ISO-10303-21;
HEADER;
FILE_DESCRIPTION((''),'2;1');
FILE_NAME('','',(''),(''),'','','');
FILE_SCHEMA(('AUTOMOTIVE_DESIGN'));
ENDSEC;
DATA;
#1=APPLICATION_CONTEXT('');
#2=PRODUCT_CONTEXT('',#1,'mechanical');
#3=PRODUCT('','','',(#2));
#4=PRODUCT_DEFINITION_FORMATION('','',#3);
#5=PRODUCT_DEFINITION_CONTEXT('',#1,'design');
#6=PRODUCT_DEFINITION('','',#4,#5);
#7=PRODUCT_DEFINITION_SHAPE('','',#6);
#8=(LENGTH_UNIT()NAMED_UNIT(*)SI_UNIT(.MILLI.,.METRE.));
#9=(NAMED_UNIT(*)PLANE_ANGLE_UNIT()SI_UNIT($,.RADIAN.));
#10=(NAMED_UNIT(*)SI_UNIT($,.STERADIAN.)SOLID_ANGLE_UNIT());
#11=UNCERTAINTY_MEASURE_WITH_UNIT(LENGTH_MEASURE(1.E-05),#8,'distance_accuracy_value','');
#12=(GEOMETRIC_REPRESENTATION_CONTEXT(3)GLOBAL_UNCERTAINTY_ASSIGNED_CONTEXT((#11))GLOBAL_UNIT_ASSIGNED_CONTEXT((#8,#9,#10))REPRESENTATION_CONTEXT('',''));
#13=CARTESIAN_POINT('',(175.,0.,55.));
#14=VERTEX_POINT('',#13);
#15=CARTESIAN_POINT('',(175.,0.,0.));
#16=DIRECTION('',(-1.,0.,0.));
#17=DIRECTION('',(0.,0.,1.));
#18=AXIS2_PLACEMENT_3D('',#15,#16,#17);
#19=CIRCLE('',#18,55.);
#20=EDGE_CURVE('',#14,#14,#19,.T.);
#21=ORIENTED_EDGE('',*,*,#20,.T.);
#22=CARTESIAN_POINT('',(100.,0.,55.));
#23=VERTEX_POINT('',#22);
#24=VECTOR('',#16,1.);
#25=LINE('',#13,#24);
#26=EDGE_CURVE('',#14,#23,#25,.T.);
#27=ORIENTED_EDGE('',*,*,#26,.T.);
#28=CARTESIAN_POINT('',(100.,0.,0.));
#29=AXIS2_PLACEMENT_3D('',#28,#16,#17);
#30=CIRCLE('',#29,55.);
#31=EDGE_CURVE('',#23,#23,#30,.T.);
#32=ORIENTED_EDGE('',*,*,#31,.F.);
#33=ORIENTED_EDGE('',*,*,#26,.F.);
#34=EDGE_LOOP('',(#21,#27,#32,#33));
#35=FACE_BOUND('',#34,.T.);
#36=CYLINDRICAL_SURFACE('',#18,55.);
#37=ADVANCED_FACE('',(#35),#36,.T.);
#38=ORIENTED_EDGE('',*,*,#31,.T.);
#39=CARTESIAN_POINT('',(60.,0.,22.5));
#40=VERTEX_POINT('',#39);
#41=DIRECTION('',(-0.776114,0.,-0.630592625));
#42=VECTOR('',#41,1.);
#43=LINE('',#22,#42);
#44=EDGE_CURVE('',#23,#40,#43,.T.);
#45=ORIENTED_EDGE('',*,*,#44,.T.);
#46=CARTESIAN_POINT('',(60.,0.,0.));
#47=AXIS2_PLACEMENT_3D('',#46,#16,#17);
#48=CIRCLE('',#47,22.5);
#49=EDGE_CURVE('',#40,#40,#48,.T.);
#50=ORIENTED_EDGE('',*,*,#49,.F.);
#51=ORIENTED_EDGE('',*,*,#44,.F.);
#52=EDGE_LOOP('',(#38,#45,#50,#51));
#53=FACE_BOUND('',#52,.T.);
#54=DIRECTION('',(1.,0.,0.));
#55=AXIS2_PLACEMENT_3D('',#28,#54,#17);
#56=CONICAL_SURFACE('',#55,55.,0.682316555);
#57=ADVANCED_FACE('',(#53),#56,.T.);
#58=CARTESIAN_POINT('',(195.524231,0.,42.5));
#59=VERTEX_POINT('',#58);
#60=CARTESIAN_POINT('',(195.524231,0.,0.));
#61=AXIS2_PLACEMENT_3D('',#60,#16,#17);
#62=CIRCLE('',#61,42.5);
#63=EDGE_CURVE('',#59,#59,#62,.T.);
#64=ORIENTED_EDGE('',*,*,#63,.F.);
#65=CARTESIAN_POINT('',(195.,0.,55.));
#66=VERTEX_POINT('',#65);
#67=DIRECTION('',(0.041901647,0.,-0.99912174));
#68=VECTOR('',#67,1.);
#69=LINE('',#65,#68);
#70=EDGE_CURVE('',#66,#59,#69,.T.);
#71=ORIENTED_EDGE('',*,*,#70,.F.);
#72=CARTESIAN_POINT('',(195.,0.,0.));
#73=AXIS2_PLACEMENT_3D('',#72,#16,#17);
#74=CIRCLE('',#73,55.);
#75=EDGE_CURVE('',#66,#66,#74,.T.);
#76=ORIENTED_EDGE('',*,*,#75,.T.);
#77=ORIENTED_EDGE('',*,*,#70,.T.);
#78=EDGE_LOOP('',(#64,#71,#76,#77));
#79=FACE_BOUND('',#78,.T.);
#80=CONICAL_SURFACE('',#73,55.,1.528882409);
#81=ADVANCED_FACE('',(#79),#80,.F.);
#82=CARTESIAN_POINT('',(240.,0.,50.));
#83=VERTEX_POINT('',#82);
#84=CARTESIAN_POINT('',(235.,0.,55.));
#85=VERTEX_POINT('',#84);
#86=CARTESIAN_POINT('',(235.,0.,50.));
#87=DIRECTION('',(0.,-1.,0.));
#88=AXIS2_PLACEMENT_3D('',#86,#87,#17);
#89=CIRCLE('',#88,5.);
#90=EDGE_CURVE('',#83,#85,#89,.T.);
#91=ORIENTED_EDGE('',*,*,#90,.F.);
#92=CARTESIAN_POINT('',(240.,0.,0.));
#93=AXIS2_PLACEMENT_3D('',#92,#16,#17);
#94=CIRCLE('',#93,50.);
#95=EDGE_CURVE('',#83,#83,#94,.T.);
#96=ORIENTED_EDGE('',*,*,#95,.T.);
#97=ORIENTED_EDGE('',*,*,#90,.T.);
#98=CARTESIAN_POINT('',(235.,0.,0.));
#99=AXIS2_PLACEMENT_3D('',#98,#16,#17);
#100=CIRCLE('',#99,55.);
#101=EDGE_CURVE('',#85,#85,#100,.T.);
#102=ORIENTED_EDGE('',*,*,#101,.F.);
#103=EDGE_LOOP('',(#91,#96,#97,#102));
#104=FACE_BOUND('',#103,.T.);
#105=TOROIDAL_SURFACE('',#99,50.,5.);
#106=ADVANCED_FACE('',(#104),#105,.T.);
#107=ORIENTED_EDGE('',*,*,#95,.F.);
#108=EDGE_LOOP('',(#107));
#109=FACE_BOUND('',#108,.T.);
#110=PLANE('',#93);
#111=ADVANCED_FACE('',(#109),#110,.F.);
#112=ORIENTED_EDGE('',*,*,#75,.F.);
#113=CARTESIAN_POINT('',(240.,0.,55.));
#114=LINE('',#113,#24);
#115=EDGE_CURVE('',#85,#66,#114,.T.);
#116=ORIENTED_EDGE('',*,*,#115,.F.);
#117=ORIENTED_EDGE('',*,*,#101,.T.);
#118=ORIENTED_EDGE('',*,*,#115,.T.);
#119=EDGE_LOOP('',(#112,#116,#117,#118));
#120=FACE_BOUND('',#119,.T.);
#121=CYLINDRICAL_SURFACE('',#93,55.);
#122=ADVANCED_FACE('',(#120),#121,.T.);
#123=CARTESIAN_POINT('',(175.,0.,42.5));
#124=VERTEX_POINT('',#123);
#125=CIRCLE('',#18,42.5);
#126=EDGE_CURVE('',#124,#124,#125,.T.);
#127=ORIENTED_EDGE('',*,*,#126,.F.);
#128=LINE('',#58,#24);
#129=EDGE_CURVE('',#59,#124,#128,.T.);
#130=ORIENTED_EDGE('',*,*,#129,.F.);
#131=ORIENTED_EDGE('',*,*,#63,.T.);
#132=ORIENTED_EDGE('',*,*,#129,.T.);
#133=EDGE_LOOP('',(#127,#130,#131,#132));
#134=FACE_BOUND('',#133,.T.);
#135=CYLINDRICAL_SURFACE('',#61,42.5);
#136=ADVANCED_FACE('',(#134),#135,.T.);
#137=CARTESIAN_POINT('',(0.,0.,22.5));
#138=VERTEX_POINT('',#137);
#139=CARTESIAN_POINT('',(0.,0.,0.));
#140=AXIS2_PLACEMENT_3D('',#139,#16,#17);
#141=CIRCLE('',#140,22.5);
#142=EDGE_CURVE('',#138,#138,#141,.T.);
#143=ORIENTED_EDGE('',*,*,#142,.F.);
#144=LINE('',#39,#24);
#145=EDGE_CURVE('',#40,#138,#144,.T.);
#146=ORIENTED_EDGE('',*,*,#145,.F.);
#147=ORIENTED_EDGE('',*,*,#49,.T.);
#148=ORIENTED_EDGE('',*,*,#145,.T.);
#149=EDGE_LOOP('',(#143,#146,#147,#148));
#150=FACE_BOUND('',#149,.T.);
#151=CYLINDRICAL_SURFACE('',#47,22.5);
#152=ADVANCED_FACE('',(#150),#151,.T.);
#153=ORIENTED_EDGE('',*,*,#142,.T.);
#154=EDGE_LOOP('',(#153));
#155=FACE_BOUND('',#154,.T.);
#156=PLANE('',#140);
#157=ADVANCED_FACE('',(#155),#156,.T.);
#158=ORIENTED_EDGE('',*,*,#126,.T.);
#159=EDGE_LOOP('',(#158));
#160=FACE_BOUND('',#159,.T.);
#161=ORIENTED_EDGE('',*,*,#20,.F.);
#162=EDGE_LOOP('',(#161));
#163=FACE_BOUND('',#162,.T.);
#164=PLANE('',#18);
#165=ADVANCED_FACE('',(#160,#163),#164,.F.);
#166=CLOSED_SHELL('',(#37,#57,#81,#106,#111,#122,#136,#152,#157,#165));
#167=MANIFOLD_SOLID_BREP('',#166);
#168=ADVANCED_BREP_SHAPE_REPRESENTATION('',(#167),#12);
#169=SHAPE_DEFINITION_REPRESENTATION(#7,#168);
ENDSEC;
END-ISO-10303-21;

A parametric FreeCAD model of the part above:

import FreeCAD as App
import Part
import Sketcher
Q = App.Units.Quantity


def edges_at(feature, points):
    """Names of the edges that pass closest to the given points."""
    edges = feature.Shape.Edges
    near = lambda p: min(range(len(edges)), key=lambda i: edges[i].distToShape(Part.Vertex(*p))[0])
    return sorted({f"Edge{near(p) + 1}" for p in points})

doc = App.newDocument("Part")
params = doc.addObject("Spreadsheet::Sheet", "Params")
for row, (alias, value) in enumerate([
    ("sketch1_width", "240 mm"),
    ("sketch1_width2", "45 mm"),
    ("sketch1_width3", "75 mm"),
    ("sketch1_width4", "60 mm"),
    ("sketch1_height", "55 mm"),
    ("revolution_angle", "360 deg"),
    ("fillet_radius", "5 mm"),
], start=1):
    params.set(f"A{row}", alias)
    params.set(f"B{row}", "=" + value)
    params.setAlias(f"B{row}", alias)

body = doc.addObject("PartDesign::Body", "Body")

# Sketch on XZ plane
sketch1 = body.newObject("Sketcher::SketchObject", "Sketch")
sketch1.AttachmentSupport = (doc.getObject("XZ_Plane"), [""])
sketch1.MapMode = "FlatFace"
sketch1.addGeometry([
    Part.LineSegment(App.Vector(0, 22, 0), App.Vector(0, 0, 0)),  # 0
    Part.LineSegment(App.Vector(0, 0, 0), App.Vector(240, 0, 0)),  # 1
    Part.LineSegment(App.Vector(240, 0, 0), App.Vector(240, 55, 0)),  # 2
    Part.LineSegment(App.Vector(240, 55, 0), App.Vector(195, 55, 0)),  # 3
    Part.LineSegment(App.Vector(195, 55, 0), App.Vector(196, 42, 0)),  # 4
    Part.LineSegment(App.Vector(196, 42, 0), App.Vector(175, 42, 0)),  # 5
    Part.LineSegment(App.Vector(175, 42, 0), App.Vector(175, 55, 0)),  # 6
    Part.LineSegment(App.Vector(175, 55, 0), App.Vector(100, 55, 0)),  # 7
    Part.LineSegment(App.Vector(100, 55, 0), App.Vector(60, 22, 0)),  # 8
    Part.LineSegment(App.Vector(60, 22, 0), App.Vector(0, 22, 0)),  # 9
], False)
sketch1.addConstraint([
    Sketcher.Constraint("Coincident", 0, 2, 1, 1),
    Sketcher.Constraint("Coincident", 1, 2, 2, 1),
    Sketcher.Constraint("Coincident", 2, 2, 3, 1),
    Sketcher.Constraint("Coincident", 3, 2, 4, 1),
    Sketcher.Constraint("Coincident", 4, 2, 5, 1),
    Sketcher.Constraint("Coincident", 5, 2, 6, 1),
    Sketcher.Constraint("Coincident", 6, 2, 7, 1),
    Sketcher.Constraint("Coincident", 7, 2, 8, 1),
    Sketcher.Constraint("Coincident", 8, 2, 9, 1),
    Sketcher.Constraint("Coincident", 9, 2, 0, 1),
    Sketcher.Constraint("Vertical", 0),
    Sketcher.Constraint("Horizontal", 1),
    Sketcher.Constraint("Vertical", 2),
    Sketcher.Constraint("Horizontal", 3),
    Sketcher.Constraint("Horizontal", 5),
    Sketcher.Constraint("Vertical", 6),
    Sketcher.Constraint("Horizontal", 7),
    Sketcher.Constraint("Horizontal", 9),
    Sketcher.Constraint("Coincident", 0, 2, -1, 1),
    Sketcher.Constraint("Horizontal", 3, 2, 6, 2),
    Sketcher.Constraint("DistanceX", 1, 1, 1, 2, Q("240 mm")),
    Sketcher.Constraint("DistanceX", 3, 2, 3, 1, Q("45 mm")),
    Sketcher.Constraint("DistanceX", 7, 2, 7, 1, Q("75 mm")),
    Sketcher.Constraint("DistanceX", 9, 2, 9, 1, Q("60 mm")),
    Sketcher.Constraint("DistanceY", 2, 1, 2, 2, Q("55 mm")),
    Sketcher.Constraint("DistanceY", 0, 2, 0, 1, Q("22.5 mm")),
    Sketcher.Constraint("DistanceY", 6, 1, 6, 2, Q("12.5 mm")),
    Sketcher.Constraint("DistanceX", -1, 1, 5, 2, Q("175 mm")),
    Sketcher.Constraint("DistanceX", 5, 2, 5, 1, Q("20.524231 mm")),
])
sketch1.setExpression("Constraints[20]", "Params.sketch1_width")
sketch1.setExpression("Constraints[21]", "Params.sketch1_width2")
sketch1.setExpression("Constraints[22]", "Params.sketch1_width3")
sketch1.setExpression("Constraints[23]", "Params.sketch1_width4")
sketch1.setExpression("Constraints[24]", "Params.sketch1_height")
revolution = body.newObject("PartDesign::Revolution", "Revolution")
revolution.Profile = sketch1
revolution.ReferenceAxis = (sketch1, ["H_Axis"])
revolution.setExpression("Angle", "Params.revolution_angle")
doc.recompute()

fillet = body.newObject("PartDesign::Fillet", "Fillet")
fillet.Base = (revolution, edges_at(revolution, [(240, 0, -55)]))
fillet.setExpression("Radius", "Params.fillet_radius")

doc.recompute()
